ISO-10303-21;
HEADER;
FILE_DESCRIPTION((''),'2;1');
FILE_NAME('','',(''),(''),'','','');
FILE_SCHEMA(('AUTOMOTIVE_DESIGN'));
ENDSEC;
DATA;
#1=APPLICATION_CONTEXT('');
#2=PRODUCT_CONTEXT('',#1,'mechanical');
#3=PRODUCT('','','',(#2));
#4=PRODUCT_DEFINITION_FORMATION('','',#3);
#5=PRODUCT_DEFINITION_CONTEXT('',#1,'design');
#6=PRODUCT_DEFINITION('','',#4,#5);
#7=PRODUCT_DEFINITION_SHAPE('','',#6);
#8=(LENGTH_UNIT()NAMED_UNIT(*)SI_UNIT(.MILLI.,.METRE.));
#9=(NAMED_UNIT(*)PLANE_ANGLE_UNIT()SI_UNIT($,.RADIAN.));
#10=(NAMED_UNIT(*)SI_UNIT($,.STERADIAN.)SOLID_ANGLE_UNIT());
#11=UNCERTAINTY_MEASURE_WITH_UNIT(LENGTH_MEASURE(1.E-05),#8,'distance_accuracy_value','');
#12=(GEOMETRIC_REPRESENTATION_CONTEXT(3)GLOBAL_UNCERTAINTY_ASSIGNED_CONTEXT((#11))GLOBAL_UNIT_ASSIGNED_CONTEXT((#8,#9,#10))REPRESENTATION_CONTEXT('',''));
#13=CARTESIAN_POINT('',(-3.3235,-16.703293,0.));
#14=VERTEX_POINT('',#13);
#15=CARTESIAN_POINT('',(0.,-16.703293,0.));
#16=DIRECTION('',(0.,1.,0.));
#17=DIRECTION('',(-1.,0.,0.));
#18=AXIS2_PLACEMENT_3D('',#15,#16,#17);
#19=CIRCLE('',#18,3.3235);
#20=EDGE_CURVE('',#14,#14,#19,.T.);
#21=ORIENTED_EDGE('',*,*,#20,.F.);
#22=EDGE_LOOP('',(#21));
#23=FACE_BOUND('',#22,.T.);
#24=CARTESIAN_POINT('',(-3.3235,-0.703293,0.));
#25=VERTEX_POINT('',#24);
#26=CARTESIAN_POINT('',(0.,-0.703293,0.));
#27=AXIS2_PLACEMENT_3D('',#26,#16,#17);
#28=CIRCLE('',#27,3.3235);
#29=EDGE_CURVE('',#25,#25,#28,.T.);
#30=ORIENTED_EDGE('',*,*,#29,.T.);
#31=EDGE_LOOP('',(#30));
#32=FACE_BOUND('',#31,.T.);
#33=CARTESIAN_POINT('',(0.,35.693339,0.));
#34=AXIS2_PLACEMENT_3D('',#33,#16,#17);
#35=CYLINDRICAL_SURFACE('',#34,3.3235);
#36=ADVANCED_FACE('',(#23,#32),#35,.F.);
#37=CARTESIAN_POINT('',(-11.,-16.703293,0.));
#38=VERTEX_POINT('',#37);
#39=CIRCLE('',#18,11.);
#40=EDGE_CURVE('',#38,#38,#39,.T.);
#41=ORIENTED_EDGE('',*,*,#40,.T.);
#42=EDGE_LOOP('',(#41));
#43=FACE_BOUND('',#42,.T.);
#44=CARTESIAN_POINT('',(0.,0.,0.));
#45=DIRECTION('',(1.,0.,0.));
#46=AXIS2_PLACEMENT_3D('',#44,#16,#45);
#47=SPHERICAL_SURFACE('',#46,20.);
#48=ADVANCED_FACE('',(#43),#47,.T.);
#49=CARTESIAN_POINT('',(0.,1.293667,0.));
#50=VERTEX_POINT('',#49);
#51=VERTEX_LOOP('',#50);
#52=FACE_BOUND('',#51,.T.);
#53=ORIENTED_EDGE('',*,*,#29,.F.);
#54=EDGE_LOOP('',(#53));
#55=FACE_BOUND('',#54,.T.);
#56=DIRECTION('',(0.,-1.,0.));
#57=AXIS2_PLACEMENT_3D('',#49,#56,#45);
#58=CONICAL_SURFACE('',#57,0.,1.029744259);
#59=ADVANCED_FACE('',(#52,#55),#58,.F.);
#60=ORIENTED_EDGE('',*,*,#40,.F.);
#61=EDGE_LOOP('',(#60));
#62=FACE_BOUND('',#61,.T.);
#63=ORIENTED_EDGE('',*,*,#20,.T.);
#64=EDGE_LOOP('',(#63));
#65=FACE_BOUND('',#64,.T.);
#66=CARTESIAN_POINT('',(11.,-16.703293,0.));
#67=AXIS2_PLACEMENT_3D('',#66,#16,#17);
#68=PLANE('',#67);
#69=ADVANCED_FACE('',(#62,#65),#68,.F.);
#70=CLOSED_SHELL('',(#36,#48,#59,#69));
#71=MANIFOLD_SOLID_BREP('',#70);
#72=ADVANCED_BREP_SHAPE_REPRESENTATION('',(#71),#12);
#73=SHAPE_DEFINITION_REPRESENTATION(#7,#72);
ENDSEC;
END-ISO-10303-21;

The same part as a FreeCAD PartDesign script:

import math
import FreeCAD as App
import Part
import Sketcher

V = App.Vector
Q = App.Units.Quantity

doc = App.newDocument("Part")
body = doc.addObject("PartDesign::Body", "Body")

sketch1 = body.newObject("Sketcher::SketchObject", "Sketch")
sketch1.AttachmentSupport = (doc.getObject("XY_Plane"), [""])
sketch1.MapMode = "FlatFace"
sketch1.addGeometry([
    Part.LineSegment(V(3.3235, -16.703293, 0), V(11, -16.703293, 0)),
    Part.ArcOfCircle(Part.Circle(V(0, 0, 0), V(0, 0, 1), 20), math.radians(-56.632987), math.radians(90)),
    Part.LineSegment(V(0, 20, 0), V(0, 1.293667, 0)),
    Part.LineSegment(V(0, 1.293667, 0), V(3.3235, -0.703293, 0)),
    Part.LineSegment(V(3.3235, -0.703293, 0), V(3.3235, -16.703293, 0)),
], False)
sketch1.addConstraint([
    Sketcher.Constraint("Coincident", 0, 2, 1, 1),
    Sketcher.Constraint("Coincident", 1, 2, 2, 1),
    Sketcher.Constraint("Coincident", 2, 2, 3, 1),
    Sketcher.Constraint("Coincident", 3, 2, 4, 1),
    Sketcher.Constraint("Coincident", 4, 2, 0, 1),
    Sketcher.Constraint("Horizontal", 0),
    Sketcher.Constraint("Vertical", 2),
    Sketcher.Constraint("Vertical", 4),
    Sketcher.Constraint("Coincident", 1, 3, -1, 1),
    Sketcher.Constraint("PointOnObject", 1, 2, -2),
    Sketcher.Constraint("Radius", 1, 20.0),
    Sketcher.Constraint("DistanceY", 4, 2, 4, 1, 16.0),
    Sketcher.Constraint("Angle", 3, Q("-31 deg")),
    Sketcher.Constraint("DistanceX", -1, 1, 0, 2, 11.0),
    Sketcher.Constraint("DistanceX", 0, 1, 0, 2, 7.6765),
])
revolution = body.newObject("PartDesign::Revolution", "Revolution")
revolution.Profile = sketch1
revolution.ReferenceAxis = (sketch1, ["V_Axis"])
revolution.Angle = 360

doc.recompute()
